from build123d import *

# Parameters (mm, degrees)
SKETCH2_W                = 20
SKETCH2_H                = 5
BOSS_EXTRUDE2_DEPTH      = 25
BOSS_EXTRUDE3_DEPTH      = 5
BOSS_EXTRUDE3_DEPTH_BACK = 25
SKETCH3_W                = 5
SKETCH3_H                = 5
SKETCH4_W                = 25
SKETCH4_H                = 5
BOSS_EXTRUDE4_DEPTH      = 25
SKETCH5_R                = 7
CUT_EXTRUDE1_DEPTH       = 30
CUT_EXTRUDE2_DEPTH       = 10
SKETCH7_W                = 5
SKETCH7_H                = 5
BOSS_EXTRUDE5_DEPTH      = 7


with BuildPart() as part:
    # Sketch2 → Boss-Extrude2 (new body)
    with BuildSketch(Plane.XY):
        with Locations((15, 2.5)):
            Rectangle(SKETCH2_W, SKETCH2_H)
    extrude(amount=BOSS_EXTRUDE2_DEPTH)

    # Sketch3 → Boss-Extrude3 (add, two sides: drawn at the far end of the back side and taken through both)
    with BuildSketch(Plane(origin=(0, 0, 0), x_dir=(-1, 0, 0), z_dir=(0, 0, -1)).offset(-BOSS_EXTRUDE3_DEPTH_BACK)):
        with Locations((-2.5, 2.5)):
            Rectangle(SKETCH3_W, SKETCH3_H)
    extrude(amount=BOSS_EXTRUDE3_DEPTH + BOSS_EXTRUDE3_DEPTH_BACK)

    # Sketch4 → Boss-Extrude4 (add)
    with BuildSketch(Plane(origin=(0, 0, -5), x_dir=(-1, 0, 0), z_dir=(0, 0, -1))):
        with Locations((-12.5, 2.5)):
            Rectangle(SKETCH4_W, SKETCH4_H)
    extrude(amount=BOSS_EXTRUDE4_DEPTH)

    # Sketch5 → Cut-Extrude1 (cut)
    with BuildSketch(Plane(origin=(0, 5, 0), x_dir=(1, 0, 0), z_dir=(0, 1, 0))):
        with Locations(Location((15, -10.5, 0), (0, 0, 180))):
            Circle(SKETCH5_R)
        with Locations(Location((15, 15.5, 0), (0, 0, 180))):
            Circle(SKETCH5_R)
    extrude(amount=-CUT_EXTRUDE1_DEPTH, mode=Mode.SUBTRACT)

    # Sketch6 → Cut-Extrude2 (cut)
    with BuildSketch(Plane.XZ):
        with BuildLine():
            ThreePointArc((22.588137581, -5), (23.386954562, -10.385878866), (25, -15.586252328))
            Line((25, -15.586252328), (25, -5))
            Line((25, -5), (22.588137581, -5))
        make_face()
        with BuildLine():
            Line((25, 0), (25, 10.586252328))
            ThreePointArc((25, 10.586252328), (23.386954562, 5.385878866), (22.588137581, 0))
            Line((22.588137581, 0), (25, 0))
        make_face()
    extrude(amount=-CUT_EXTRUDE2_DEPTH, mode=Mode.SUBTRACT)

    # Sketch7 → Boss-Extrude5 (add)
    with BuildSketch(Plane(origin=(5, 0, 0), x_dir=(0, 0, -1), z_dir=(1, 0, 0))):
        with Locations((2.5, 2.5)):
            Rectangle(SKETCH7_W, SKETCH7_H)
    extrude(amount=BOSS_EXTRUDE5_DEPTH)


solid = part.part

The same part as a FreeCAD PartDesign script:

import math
import FreeCAD as App
import Part
import Sketcher


def add_polygon(sketch, points):
    """Adds a closed chain of lines whose ends are joined by coincident constraints."""
    first, n = sketch.GeometryCount, len(points)
    for a, b in zip(points, points[1:] + points[:1]):
        sketch.addGeometry(Part.LineSegment(App.Vector(*a, 0), App.Vector(*b, 0)), False)
    for i in range(n):
        sketch.addConstraint(Sketcher.Constraint("Coincident", first + i, 2, first + (i + 1) % n, 1))

doc = App.newDocument("Part")
body = doc.addObject("PartDesign::Body", "Body")

# Sketch on XY plane
sketch1 = body.newObject("Sketcher::SketchObject", "Sketch")
sketch1.AttachmentSupport = (doc.getObject("XY_Plane"), [""])
sketch1.MapMode = "FlatFace"
add_polygon(sketch1, [(5, 5), (5, 0), (25, 0), (25, 5)])  # lines 0-3
sketch1.addConstraint(Sketcher.Constraint("Vertical", 0))
sketch1.addConstraint(Sketcher.Constraint("Horizontal", 1))
sketch1.addConstraint(Sketcher.Constraint("Vertical", 2))
sketch1.addConstraint(Sketcher.Constraint("Horizontal", 3))
sketch1.addConstraint(Sketcher.Constraint("PointOnObject", 0, 2, -1))
sketch1.addConstraint(Sketcher.Constraint("DistanceX", 1, 1, 1, 2, 20.0))
sketch1.addConstraint(Sketcher.Constraint("DistanceY", 0, 2, 0, 1, 5.0))
sketch1.addConstraint(Sketcher.Constraint("DistanceX", -1, 1, 0, 2, 5.0))
pad1 = body.newObject("PartDesign::Pad", "Pad")
pad1.Profile = sketch1
pad1.Length = 25

# Sketch on XY plane
sketch2 = body.newObject("Sketcher::SketchObject", "Sketch001")
sketch2.AttachmentSupport = (doc.getObject("XY_Plane"), [""])
sketch2.MapMode = "FlatFace"
add_polygon(sketch2, [(5, 5), (5, 0), (0, 0), (0, 5)])  # lines 0-3
sketch2.addConstraint(Sketcher.Constraint("Vertical", 0))
sketch2.addConstraint(Sketcher.Constraint("Horizontal", 1))
sketch2.addConstraint(Sketcher.Constraint("Vertical", 2))
sketch2.addConstraint(Sketcher.Constraint("Horizontal", 3))
sketch2.addConstraint(Sketcher.Constraint("Coincident", 1, 2, -1, 1))
sketch2.addConstraint(Sketcher.Constraint("Equal", 3, 0))
sketch2.addConstraint(Sketcher.Constraint("DistanceX", 1, 2, 1, 1, 5.0))
pad2 = body.newObject("PartDesign::Pad", "Pad001")
pad2.Profile = sketch2
pad2.Type = "TwoLengths"
pad2.Length = 5
pad2.Length2 = 25
pad2.Reversed = True

# Sketch on XY plane
sketch3 = body.newObject("Sketcher::SketchObject", "Sketch002")
sketch3.AttachmentSupport = (doc.getObject("XY_Plane"), [""])
sketch3.MapMode = "FlatFace"
sketch3.AttachmentOffset = App.Placement(App.Vector(0, 0, -5), App.Rotation())
add_polygon(sketch3, [(25, 5), (25, 0), (0, 0), (0, 5)])  # lines 0-3
sketch3.addConstraint(Sketcher.Constraint("Vertical", 0))
sketch3.addConstraint(Sketcher.Constraint("Horizontal", 1))
sketch3.addConstraint(Sketcher.Constraint("Vertical", 2))
sketch3.addConstraint(Sketcher.Constraint("Horizontal", 3))
sketch3.addConstraint(Sketcher.Constraint("Coincident", 1, 2, -1, 1))
sketch3.addConstraint(Sketcher.Constraint("DistanceX", 1, 2, 1, 1, 25.0))
sketch3.addConstraint(Sketcher.Constraint("DistanceY", 0, 2, 0, 1, 5.0))
pad3 = body.newObject("PartDesign::Pad", "Pad002")
pad3.Profile = sketch3
pad3.Length = 25
pad3.Reversed = True

# Sketch on XZ plane
sketch4 = body.newObject("Sketcher::SketchObject", "Sketch003")
sketch4.AttachmentSupport = (doc.getObject("XZ_Plane"), [""])
sketch4.MapMode = "FlatFace"
sketch4.AttachmentOffset = App.Placement(App.Vector(0, 0, -5), App.Rotation())
sketch4.addGeometry(Part.Circle(App.Vector(15, 10, 0), App.Vector(0, 0, 1), 7), False)
sketch4.addGeometry(Part.Circle(App.Vector(15, -16, 0), App.Vector(0, 0, 1), 7), False)
sketch4.addConstraint(Sketcher.Constraint("Equal", 0, 1))
sketch4.addConstraint(Sketcher.Constraint("Vertical", 0, 3, 1, 3))
sketch4.addConstraint(Sketcher.Constraint("Diameter", 0, 14.0))
sketch4.addConstraint(Sketcher.Constraint("DistanceX", -1, 1, 0, 3, 15.0))
sketch4.addConstraint(Sketcher.Constraint("DistanceY", 1, 3, 0, 3, 26.0))
sketch4.addConstraint(Sketcher.Constraint("DistanceY", -1, 1, 0, 3, 10.5))
pocket1 = body.newObject("PartDesign::Pocket", "Pocket")
pocket1.Profile = sketch4
pocket1.Length = 30
pocket1.Reversed = True

# Sketch on XZ plane
sketch5 = body.newObject("Sketcher::SketchObject", "Sketch004")
sketch5.AttachmentSupport = (doc.getObject("XZ_Plane"), [""])
sketch5.MapMode = "FlatFace"
sketch5.addGeometry(Part.ArcOfCircle(Part.Circle(App.Vector(58, -2.5, 0), App.Vector(0, 0, 1), 35.5), math.radians(-175.96), math.radians(-158.37)), False)
sketch5.addGeometry(Part.LineSegment(App.Vector(25, -15.6, 0), App.Vector(25, -5, 0)), False)
sketch5.addGeometry(Part.LineSegment(App.Vector(25, -5, 0), App.Vector(22.6, -5, 0)), False)
sketch5.addGeometry(Part.LineSegment(App.Vector(25, 0, 0), App.Vector(25, 10.6, 0)), False)
sketch5.addGeometry(Part.ArcOfCircle(Part.Circle(App.Vector(58, -2.5, 0), App.Vector(0, 0, 1), 35.5), math.radians(158.37), math.radians(175.96)), False)
sketch5.addGeometry(Part.LineSegment(App.Vector(22.6, 0, 0), App.Vector(25, 0, 0)), False)
sketch5.addConstraint(Sketcher.Constraint("Coincident", 0, 2, 1, 1))
sketch5.addConstraint(Sketcher.Constraint("Coincident", 1, 2, 2, 1))
sketch5.addConstraint(Sketcher.Constraint("Coincident", 2, 2, 0, 1))
sketch5.addConstraint(Sketcher.Constraint("Coincident", 3, 2, 4, 1))
sketch5.addConstraint(Sketcher.Constraint("Coincident", 4, 2, 5, 1))
sketch5.addConstraint(Sketcher.Constraint("Coincident", 5, 2, 3, 1))
sketch5.addConstraint(Sketcher.Constraint("Vertical", 1))
sketch5.addConstraint(Sketcher.Constraint("Horizontal", 2))
sketch5.addConstraint(Sketcher.Constraint("Vertical", 3))
sketch5.addConstraint(Sketcher.Constraint("Horizontal", 5))
sketch5.addConstraint(Sketcher.Constraint("Coincident", 4, 3, 0, 3))
sketch5.addConstraint(Sketcher.Constraint("Equal", 0, 4))
sketch5.addConstraint(Sketcher.Constraint("PointOnObject", 4, 2, -1))
sketch5.addConstraint(Sketcher.Constraint("Vertical", 1, 2, 3, 2))
sketch5.addConstraint(Sketcher.Constraint("Vertical", 2, 2, 4, 2))
sketch5.addConstraint(Sketcher.Constraint("Radius", 0, 35.5))
sketch5.addConstraint(Sketcher.Constraint("DistanceX", -1, 1, 0, 3, 58.0))
sketch5.addConstraint(Sketcher.Constraint("DistanceX", -1, 1, 0, 2, 25.0))
sketch5.addConstraint(Sketcher.Constraint("DistanceY", 1, 2, -1, 1, 5.0))
pocket2 = body.newObject("PartDesign::Pocket", "Pocket001")
pocket2.Profile = sketch5
pocket2.Length = 10

# Sketch on YZ plane
sketch6 = body.newObject("Sketcher::SketchObject", "Sketch005")
sketch6.AttachmentSupport = (doc.getObject("YZ_Plane"), [""])
sketch6.MapMode = "FlatFace"
sketch6.AttachmentOffset = App.Placement(App.Vector(0, 0, 5), App.Rotation())
add_polygon(sketch6, [(5, 0), (0, 0), (0, -5), (5, -5)])  # lines 0-3
sketch6.addConstraint(Sketcher.Constraint("Horizontal", 0))
sketch6.addConstraint(Sketcher.Constraint("Vertical", 1))
sketch6.addConstraint(Sketcher.Constraint("Horizontal", 2))
sketch6.addConstraint(Sketcher.Constraint("Vertical", 3))
sketch6.addConstraint(Sketcher.Constraint("Coincident", 0, 2, -1, 1))
sketch6.addConstraint(Sketcher.Constraint("Equal", 2, 1))
sketch6.addConstraint(Sketcher.Constraint("DistanceX", 0, 2, 0, 1, 5.0))
pad4 = body.newObject("PartDesign::Pad", "Pad003")
pad4.Profile = sketch6
pad4.Length = 7

doc.recompute()
